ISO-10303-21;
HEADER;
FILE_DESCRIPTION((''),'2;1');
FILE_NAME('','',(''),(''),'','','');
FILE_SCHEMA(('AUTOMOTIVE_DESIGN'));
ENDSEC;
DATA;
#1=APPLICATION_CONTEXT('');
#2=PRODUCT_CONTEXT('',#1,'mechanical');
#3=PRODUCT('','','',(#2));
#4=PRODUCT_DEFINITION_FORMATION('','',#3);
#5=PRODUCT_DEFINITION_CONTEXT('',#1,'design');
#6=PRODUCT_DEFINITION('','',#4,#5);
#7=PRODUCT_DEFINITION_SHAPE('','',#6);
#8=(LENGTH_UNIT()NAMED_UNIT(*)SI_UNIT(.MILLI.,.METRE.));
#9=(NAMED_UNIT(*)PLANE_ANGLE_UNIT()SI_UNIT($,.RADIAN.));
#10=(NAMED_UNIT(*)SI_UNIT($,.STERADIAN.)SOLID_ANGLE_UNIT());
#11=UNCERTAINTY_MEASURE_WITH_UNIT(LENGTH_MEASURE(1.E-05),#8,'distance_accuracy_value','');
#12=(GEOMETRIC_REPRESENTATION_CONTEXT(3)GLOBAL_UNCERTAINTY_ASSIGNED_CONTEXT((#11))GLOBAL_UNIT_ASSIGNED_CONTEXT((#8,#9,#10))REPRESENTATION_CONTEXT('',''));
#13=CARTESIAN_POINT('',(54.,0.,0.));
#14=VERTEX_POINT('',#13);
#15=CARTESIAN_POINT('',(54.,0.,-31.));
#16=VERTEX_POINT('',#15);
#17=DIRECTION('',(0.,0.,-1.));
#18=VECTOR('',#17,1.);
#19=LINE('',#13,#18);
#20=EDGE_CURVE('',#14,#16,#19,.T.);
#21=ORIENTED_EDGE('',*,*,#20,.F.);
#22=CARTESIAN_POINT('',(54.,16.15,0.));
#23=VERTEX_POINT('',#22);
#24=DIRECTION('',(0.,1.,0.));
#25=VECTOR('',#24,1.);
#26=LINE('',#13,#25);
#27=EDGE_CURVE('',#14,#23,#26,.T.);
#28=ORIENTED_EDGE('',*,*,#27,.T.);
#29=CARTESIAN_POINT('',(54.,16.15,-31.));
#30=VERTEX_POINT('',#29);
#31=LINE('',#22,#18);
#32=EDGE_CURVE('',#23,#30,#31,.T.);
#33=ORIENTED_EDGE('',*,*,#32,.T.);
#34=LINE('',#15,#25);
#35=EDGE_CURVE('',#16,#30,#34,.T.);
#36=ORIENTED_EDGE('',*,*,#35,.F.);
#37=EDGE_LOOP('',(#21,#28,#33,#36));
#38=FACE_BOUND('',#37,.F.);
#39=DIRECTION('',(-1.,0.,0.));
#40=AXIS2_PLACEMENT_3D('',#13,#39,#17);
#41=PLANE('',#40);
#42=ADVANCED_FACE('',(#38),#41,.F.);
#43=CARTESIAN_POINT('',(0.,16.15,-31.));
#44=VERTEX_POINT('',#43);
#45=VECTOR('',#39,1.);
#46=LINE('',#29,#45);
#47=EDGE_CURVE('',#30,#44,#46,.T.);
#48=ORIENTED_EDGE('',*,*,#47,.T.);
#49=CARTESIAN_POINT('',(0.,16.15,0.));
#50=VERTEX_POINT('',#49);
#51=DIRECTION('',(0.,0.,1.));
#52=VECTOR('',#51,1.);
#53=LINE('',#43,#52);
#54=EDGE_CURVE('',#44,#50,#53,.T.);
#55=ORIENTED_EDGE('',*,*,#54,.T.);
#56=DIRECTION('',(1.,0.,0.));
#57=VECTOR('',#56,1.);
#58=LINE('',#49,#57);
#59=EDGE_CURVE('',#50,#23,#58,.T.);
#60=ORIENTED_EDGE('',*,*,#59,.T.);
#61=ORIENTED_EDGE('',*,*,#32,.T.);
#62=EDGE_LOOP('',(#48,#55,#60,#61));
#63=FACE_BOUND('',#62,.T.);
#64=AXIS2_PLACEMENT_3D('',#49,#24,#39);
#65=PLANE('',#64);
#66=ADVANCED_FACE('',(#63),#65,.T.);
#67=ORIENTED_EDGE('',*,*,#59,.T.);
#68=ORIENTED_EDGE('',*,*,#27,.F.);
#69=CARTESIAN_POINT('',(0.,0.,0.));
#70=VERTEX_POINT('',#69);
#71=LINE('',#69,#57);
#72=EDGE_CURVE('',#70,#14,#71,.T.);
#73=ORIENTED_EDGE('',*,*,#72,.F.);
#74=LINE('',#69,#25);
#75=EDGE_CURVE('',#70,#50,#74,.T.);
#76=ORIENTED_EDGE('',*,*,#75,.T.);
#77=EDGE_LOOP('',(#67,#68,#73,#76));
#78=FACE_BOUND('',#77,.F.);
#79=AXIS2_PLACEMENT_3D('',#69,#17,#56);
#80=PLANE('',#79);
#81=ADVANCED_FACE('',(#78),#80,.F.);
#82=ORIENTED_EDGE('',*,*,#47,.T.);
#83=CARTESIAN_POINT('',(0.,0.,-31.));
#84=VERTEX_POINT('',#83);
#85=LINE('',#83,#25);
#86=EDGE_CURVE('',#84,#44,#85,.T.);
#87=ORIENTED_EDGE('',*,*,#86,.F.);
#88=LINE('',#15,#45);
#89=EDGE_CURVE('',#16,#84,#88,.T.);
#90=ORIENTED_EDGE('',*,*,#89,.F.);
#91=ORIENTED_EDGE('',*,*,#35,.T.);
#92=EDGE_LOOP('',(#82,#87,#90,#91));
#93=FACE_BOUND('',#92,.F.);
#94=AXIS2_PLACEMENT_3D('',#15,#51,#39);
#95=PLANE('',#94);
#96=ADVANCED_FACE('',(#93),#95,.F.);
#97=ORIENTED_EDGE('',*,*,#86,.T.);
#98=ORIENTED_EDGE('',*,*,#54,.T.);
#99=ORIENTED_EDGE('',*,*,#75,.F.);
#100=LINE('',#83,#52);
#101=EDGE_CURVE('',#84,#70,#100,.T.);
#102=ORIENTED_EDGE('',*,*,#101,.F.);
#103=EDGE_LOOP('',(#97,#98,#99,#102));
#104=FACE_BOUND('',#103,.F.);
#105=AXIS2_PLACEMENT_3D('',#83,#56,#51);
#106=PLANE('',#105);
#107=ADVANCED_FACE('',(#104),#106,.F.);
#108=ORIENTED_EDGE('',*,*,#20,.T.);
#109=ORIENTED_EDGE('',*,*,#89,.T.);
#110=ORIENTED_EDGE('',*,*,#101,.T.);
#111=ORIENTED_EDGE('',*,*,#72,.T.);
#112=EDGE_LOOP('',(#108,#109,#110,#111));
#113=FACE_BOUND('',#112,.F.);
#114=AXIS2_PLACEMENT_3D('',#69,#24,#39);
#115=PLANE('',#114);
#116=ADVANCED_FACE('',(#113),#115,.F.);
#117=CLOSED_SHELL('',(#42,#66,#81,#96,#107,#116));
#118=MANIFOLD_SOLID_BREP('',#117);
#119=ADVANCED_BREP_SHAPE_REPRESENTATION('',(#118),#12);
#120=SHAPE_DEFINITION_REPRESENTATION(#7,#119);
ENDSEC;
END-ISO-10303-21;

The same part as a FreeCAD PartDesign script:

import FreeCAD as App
import Part
import Sketcher
from FreeCAD import Vector

doc = App.newDocument("Part")
body = doc.addObject("PartDesign::Body", "Body")

# Sketch on XZ plane
sketch1 = body.newObject("Sketcher::SketchObject", "Sketch")
sketch1.AttachmentSupport = (doc.getObject("XZ_Plane"), [""])
sketch1.MapMode = "FlatFace"
sketch1.addGeometry(Part.LineSegment(Vector(0, -31, 0), Vector(0, 0, 0)), False)
sketch1.addGeometry(Part.LineSegment(Vector(0, 0, 0), Vector(54, 0, 0)), False)
sketch1.addGeometry(Part.LineSegment(Vector(54, 0, 0), Vector(54, -31, 0)), False)
sketch1.addGeometry(Part.LineSegment(Vector(54, -31, 0), Vector(0, -31, 0)), False)
sketch1.addConstraint(Sketcher.Constraint("Coincident", 0, 2, 1, 1))
sketch1.addConstraint(Sketcher.Constraint("Coincident", 1, 2, 2, 1))
sketch1.addConstraint(Sketcher.Constraint("Coincident", 2, 2, 3, 1))
sketch1.addConstraint(Sketcher.Constraint("Coincident", 3, 2, 0, 1))
sketch1.addConstraint(Sketcher.Constraint("Vertical", 0))
sketch1.addConstraint(Sketcher.Constraint("Horizontal", 1))
sketch1.addConstraint(Sketcher.Constraint("Vertical", 2))
sketch1.addConstraint(Sketcher.Constraint("Horizontal", 3))
sketch1.addConstraint(Sketcher.Constraint("Coincident", 0, 2, -1, 1))
sketch1.addConstraint(Sketcher.Constraint("DistanceX", 1, 1, 1, 2, 54.0))
sketch1.addConstraint(Sketcher.Constraint("DistanceY", 0, 1, 0, 2, 31.0))
pad1 = body.newObject("PartDesign::Pad", "Pad")
pad1.Profile = sketch1
pad1.Length = 16.15
pad1.Reversed = True

doc.recompute()
